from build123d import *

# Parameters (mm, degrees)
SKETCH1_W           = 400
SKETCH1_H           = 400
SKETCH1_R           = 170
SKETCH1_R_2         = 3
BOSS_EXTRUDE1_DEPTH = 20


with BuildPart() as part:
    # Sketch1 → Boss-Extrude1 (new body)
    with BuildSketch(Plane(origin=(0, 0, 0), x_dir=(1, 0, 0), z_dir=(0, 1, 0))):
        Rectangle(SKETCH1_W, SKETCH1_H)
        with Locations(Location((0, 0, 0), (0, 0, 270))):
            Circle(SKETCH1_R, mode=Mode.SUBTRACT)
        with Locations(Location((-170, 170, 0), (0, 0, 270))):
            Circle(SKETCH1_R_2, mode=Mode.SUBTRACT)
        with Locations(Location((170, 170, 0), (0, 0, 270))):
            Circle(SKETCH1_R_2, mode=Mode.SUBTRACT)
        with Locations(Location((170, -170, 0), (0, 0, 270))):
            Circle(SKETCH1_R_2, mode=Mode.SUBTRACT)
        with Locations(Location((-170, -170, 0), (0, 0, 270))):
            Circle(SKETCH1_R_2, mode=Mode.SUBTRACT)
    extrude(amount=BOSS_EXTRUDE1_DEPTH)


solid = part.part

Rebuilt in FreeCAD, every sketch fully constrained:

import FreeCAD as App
import Part
import Sketcher

V = App.Vector
Q = App.Units.Quantity

doc = App.newDocument("Part")
body = doc.addObject("PartDesign::Body", "Body")

sketch1 = body.newObject("Sketcher::SketchObject", "Sketch")
sketch1.AttachmentSupport = (doc.getObject("XZ_Plane"), [""])
sketch1.MapMode = "FlatFace"
sketch1.addGeometry([
    Part.LineSegment(V(-200, -200, 0), V(-200, 200, 0)),
    Part.LineSegment(V(-200, 200, 0), V(200, 200, 0)),
    Part.LineSegment(V(200, 200, 0), V(200, -200, 0)),
    Part.LineSegment(V(200, -200, 0), V(-200, -200, 0)),
    Part.Circle(V(-170, 170, 0), V(0, 0, 1), 3),
    Part.Circle(V(170, 170, 0), V(0, 0, 1), 3),
    Part.Circle(V(-170, -170, 0), V(0, 0, 1), 3),
    Part.Circle(V(0, 0, 0), V(0, 0, 1), 170),
    Part.Circle(V(170, -170, 0), V(0, 0, 1), 3),
], False)
sketch1.addConstraint([
    Sketcher.Constraint("Coincident", 0, 2, 1, 1),
    Sketcher.Constraint("Coincident", 1, 2, 2, 1),
    Sketcher.Constraint("Coincident", 2, 2, 3, 1),
    Sketcher.Constraint("Coincident", 3, 2, 0, 1),
    Sketcher.Constraint("Vertical", 0),
    Sketcher.Constraint("Horizontal", 1),
    Sketcher.Constraint("Vertical", 2),
    Sketcher.Constraint("Horizontal", 3),
    Sketcher.Constraint("Coincident", 7, 3, -1, 1),
    Sketcher.Constraint("Equal", 4, 5),
    Sketcher.Constraint("Equal", 5, 6),
    Sketcher.Constraint("Equal", 6, 8),
    Sketcher.Constraint("Symmetric", 5, 3, 6, 3, -1, 1),
    Sketcher.Constraint("Symmetric", 4, 3, 8, 3, -1, 1),
    Sketcher.Constraint("Symmetric", 0, 2, 2, 2, -1, 1),
    Sketcher.Constraint("Symmetric", 4, 3, 5, 3, -2),
    Sketcher.Constraint("Equal", 3, 0),
    Sketcher.Constraint("Diameter", 4, Q("6 mm")),
    Sketcher.Constraint("Diameter", 7, Q("340 mm")),
    Sketcher.Constraint("DistanceX", 1, 1, 1, 2, Q("400 mm")),
    Sketcher.Constraint("DistanceX", 4, 3, -1, 1, Q("170 mm")),
    Sketcher.Constraint("DistanceY", -1, 1, 4, 3, Q("170 mm")),
])
pad1 = body.newObject("PartDesign::Pad", "Pad")
pad1.Profile = sketch1
pad1.Length = 20
pad1.Reversed = True

doc.recompute()
